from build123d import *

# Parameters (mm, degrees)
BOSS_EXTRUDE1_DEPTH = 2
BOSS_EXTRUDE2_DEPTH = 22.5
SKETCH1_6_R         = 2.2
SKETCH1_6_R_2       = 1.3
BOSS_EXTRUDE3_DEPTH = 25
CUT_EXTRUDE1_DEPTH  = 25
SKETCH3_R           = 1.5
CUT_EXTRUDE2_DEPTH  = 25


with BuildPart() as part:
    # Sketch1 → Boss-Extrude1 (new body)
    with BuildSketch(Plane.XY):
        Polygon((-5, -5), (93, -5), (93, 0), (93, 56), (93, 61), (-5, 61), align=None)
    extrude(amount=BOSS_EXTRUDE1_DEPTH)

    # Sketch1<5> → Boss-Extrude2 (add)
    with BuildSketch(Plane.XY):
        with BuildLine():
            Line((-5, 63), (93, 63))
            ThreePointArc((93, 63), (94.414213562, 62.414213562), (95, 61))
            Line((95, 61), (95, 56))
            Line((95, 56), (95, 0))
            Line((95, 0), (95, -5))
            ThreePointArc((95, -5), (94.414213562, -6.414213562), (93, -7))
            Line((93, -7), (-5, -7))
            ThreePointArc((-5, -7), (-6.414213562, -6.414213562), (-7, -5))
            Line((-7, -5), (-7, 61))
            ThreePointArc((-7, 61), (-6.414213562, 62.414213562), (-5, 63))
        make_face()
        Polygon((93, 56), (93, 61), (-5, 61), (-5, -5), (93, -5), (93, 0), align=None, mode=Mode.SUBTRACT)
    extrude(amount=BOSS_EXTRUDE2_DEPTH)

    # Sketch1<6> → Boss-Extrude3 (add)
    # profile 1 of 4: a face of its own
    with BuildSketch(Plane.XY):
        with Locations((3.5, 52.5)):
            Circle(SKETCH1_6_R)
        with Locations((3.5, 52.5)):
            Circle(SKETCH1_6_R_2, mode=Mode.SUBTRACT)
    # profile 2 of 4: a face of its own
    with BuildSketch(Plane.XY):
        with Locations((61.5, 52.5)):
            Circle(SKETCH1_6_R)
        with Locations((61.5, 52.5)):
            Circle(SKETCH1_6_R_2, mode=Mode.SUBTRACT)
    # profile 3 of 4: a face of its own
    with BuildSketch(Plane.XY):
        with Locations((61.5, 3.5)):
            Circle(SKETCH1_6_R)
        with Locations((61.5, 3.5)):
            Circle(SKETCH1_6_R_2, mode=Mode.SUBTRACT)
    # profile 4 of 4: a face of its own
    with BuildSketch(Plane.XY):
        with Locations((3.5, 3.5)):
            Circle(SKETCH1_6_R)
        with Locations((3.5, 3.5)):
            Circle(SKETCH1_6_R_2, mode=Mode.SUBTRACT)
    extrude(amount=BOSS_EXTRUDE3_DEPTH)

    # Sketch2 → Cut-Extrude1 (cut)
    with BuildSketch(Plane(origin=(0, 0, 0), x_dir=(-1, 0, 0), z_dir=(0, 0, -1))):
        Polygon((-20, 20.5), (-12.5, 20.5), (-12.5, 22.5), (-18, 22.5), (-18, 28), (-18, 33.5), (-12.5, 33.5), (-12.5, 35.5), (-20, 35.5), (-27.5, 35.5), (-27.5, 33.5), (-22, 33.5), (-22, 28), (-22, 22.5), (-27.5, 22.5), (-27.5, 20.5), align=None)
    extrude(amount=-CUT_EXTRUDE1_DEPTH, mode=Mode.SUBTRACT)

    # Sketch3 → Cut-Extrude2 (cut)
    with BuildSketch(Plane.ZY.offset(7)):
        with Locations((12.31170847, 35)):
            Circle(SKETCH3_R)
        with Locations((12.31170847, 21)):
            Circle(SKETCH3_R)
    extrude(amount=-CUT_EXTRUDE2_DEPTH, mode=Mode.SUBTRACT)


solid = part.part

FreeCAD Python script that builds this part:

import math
import FreeCAD as App
import Part
import Sketcher


def add_polygon(sketch, points):
    """Adds a closed chain of lines whose ends are joined by coincident constraints."""
    first, n = sketch.GeometryCount, len(points)
    for a, b in zip(points, points[1:] + points[:1]):
        sketch.addGeometry(Part.LineSegment(App.Vector(*a, 0), App.Vector(*b, 0)), False)
    for i in range(n):
        sketch.addConstraint(Sketcher.Constraint("Coincident", first + i, 2, first + (i + 1) % n, 1))

doc = App.newDocument("Part")
params = doc.addObject("Spreadsheet::Sheet", "Params")
for row, (alias, value) in enumerate([
    ("sketch1_width", "98 mm"),
    ("sketch1_height", "66 mm"),
    ("pad1_length", "2 mm"),
    ("sketch2_radius", "2 mm"),
    ("sketch2_width", "98 mm"),
    ("sketch2_height", "66 mm"),
    ("pad2_length", "22.5 mm"),
    ("sketch3_diameter", "4.4 mm"),
    ("sketch3_diameter2", "2.6 mm"),
    ("pad3_length", "25 mm"),
    ("sketch4_width", "15 mm"),
    ("sketch4_height", "2 mm"),
    ("sketch4_height2", "11 mm"),
    ("sketch4_width2", "5.5 mm"),
    ("pocket1_length", "25 mm"),
    ("sketch5_diameter", "3 mm"),
    ("pocket2_length", "25 mm"),
], start=1):
    params.set(f"A{row}", alias)
    params.set(f"B{row}", "=" + value)
    params.setAlias(f"B{row}", alias)

body = doc.addObject("PartDesign::Body", "Body")

# Sketch on XY plane
sketch1 = body.newObject("Sketcher::SketchObject", "Sketch")
sketch1.AttachmentSupport = (doc.getObject("XY_Plane"), [""])
sketch1.MapMode = "FlatFace"
add_polygon(sketch1, [(-5, -5), (93, -5), (93, 61), (-5, 61)])  # lines 0-3
sketch1.addConstraint(Sketcher.Constraint("Horizontal", 0))
sketch1.addConstraint(Sketcher.Constraint("Vertical", 1))
sketch1.addConstraint(Sketcher.Constraint("Horizontal", 2))
sketch1.addConstraint(Sketcher.Constraint("Vertical", 3))
sketch1.addConstraint(Sketcher.Constraint("DistanceX", 0, 1, 0, 2, 98.0))
sketch1.addConstraint(Sketcher.Constraint("DistanceY", 1, 1, 1, 2, 66.0))
sketch1.addConstraint(Sketcher.Constraint("DistanceX", -1, 1, 0, 2, 93.0))
sketch1.addConstraint(Sketcher.Constraint("DistanceY", 0, 2, -1, 1, 5.0))
sketch1.setExpression("Constraints[8]", "Params.sketch1_width")
sketch1.setExpression("Constraints[9]", "Params.sketch1_height")
pad1 = body.newObject("PartDesign::Pad", "Pad")
pad1.Profile = sketch1
pad1.setExpression("Length", "Params.pad1_length")

# Sketch on XY plane
sketch2 = body.newObject("Sketcher::SketchObject", "Sketch001")
sketch2.AttachmentSupport = (doc.getObject("XY_Plane"), [""])
sketch2.MapMode = "FlatFace"
sketch2.addGeometry(Part.LineSegment(App.Vector(93, 63, 0), App.Vector(-5, 63, 0)), False)  # 0
sketch2.addGeometry(Part.ArcOfCircle(Part.Circle(App.Vector(-5, 61, 0), App.Vector(0, 0, 1), 2), math.radians(90), math.radians(180)), False)  # 1
sketch2.addGeometry(Part.LineSegment(App.Vector(-7, 61, 0), App.Vector(-7, -5, 0)), False)  # 2
sketch2.addGeometry(Part.ArcOfCircle(Part.Circle(App.Vector(-5, -5, 0), App.Vector(0, 0, 1), 2), math.radians(-180), math.radians(-90)), False)  # 3
sketch2.addGeometry(Part.LineSegment(App.Vector(-5, -7, 0), App.Vector(93, -7, 0)), False)  # 4
sketch2.addGeometry(Part.ArcOfCircle(Part.Circle(App.Vector(93, -5, 0), App.Vector(0, 0, 1), 2), math.radians(-90), math.radians(0)), False)  # 5
sketch2.addGeometry(Part.LineSegment(App.Vector(95, -5, 0), App.Vector(95, 61, 0)), False)  # 6
sketch2.addGeometry(Part.ArcOfCircle(Part.Circle(App.Vector(93, 61, 0), App.Vector(0, 0, 1), 2), math.radians(0), math.radians(90)), False)  # 7
add_polygon(sketch2, [(93, -5), (-5, -5), (-5, 61), (93, 61)])  # lines 8-11
sketch2.addConstraint(Sketcher.Constraint("Tangent", 0, 2, 1, 1))
sketch2.addConstraint(Sketcher.Constraint("Tangent", 1, 2, 2, 1))
sketch2.addConstraint(Sketcher.Constraint("Tangent", 2, 2, 3, 1))
sketch2.addConstraint(Sketcher.Constraint("Tangent", 3, 2, 4, 1))
sketch2.addConstraint(Sketcher.Constraint("Tangent", 4, 2, 5, 1))
sketch2.addConstraint(Sketcher.Constraint("Tangent", 5, 2, 6, 1))
sketch2.addConstraint(Sketcher.Constraint("Tangent", 6, 2, 7, 1))
sketch2.addConstraint(Sketcher.Constraint("Tangent", 7, 2, 0, 1))
sketch2.addConstraint(Sketcher.Constraint("Horizontal", 0))
sketch2.addConstraint(Sketcher.Constraint("Vertical", 2))
sketch2.addConstraint(Sketcher.Constraint("Horizontal", 4))
sketch2.addConstraint(Sketcher.Constraint("Vertical", 6))
sketch2.addConstraint(Sketcher.Constraint("Horizontal", 8))
sketch2.addConstraint(Sketcher.Constraint("Vertical", 9))
sketch2.addConstraint(Sketcher.Constraint("Horizontal", 10))
sketch2.addConstraint(Sketcher.Constraint("Vertical", 11))
sketch2.addConstraint(Sketcher.Constraint("Coincident", 8, 2, 3, 3))
sketch2.addConstraint(Sketcher.Constraint("Coincident", 9, 2, 1, 3))
sketch2.addConstraint(Sketcher.Constraint("Coincident", 10, 2, 7, 3))
sketch2.addConstraint(Sketcher.Constraint("Equal", 3, 5))
sketch2.addConstraint(Sketcher.Constraint("Radius", 1, 2.0))
sketch2.addConstraint(Sketcher.Constraint("DistanceX", 0, 2, 0, 1, 98.0))
sketch2.addConstraint(Sketcher.Constraint("DistanceY", 2, 2, 2, 1, 66.0))
sketch2.addConstraint(Sketcher.Constraint("DistanceX", 1, 3, -1, 1, 5.0))
sketch2.addConstraint(Sketcher.Constraint("DistanceY", -1, 1, 1, 3, 61.0))
sketch2.setExpression("Constraints[24]", "Params.sketch2_radius")
sketch2.setExpression("Constraints[25]", "Params.sketch2_width")
sketch2.setExpression("Constraints[26]", "Params.sketch2_height")
pad2 = body.newObject("PartDesign::Pad", "Pad001")
pad2.Profile = sketch2
pad2.setExpression("Length", "Params.pad2_length")

# Sketch on XY plane
sketch3 = body.newObject("Sketcher::SketchObject", "Sketch002")
sketch3.AttachmentSupport = (doc.getObject("XY_Plane"), [""])
sketch3.MapMode = "FlatFace"
sketch3.addGeometry(Part.Circle(App.Vector(3.5, 52.5, 0), App.Vector(0, 0, 1), 2.2), False)
sketch3.addGeometry(Part.Circle(App.Vector(3.5, 52.5, 0), App.Vector(0, 0, 1), 1.3), False)
sketch3.addGeometry(Part.Circle(App.Vector(61.5, 52.5, 0), App.Vector(0, 0, 1), 2.2), False)
sketch3.addGeometry(Part.Circle(App.Vector(61.5, 52.5, 0), App.Vector(0, 0, 1), 1.3), False)
sketch3.addGeometry(Part.Circle(App.Vector(61.5, 3.5, 0), App.Vector(0, 0, 1), 2.2), False)
sketch3.addGeometry(Part.Circle(App.Vector(61.5, 3.5, 0), App.Vector(0, 0, 1), 1.3), False)
sketch3.addGeometry(Part.Circle(App.Vector(3.5, 3.5, 0), App.Vector(0, 0, 1), 2.2), False)
sketch3.addGeometry(Part.Circle(App.Vector(3.5, 3.5, 0), App.Vector(0, 0, 1), 1.3), False)
sketch3.addConstraint(Sketcher.Constraint("Coincident", 1, 3, 0, 3))
sketch3.addConstraint(Sketcher.Constraint("Coincident", 3, 3, 2, 3))
sketch3.addConstraint(Sketcher.Constraint("Coincident", 5, 3, 4, 3))
sketch3.addConstraint(Sketcher.Constraint("Coincident", 7, 3, 6, 3))
sketch3.addConstraint(Sketcher.Constraint("Equal", 0, 2))
sketch3.addConstraint(Sketcher.Constraint("Equal", 1, 3))
sketch3.addConstraint(Sketcher.Constraint("Equal", 2, 4))
sketch3.addConstraint(Sketcher.Constraint("Equal", 3, 5))
sketch3.addConstraint(Sketcher.Constraint("Equal", 4, 6))
sketch3.addConstraint(Sketcher.Constraint("Equal", 5, 7))
sketch3.addConstraint(Sketcher.Constraint("Horizontal", 1, 3, 2, 3))
sketch3.addConstraint(Sketcher.Constraint("Horizontal", 5, 3, 6, 3))
sketch3.addConstraint(Sketcher.Constraint("Vertical", 3, 3, 4, 3))
sketch3.addConstraint(Sketcher.Constraint("Vertical", 1, 3, 6, 3))
sketch3.addConstraint(Sketcher.Constraint("Diameter", 0, 4.4))
sketch3.addConstraint(Sketcher.Constraint("Diameter", 1, 2.6))
sketch3.addConstraint(Sketcher.Constraint("DistanceX", 0, 3, 2, 3, 58.0))
sketch3.addConstraint(Sketcher.Constraint("DistanceY", 4, 3, 2, 3, 49.0))
sketch3.addConstraint(Sketcher.Constraint("DistanceX", -1, 1, 0, 3, 3.5))
sketch3.addConstraint(Sketcher.Constraint("DistanceY", -1, 1, 0, 3, 52.5))
sketch3.setExpression("Constraints[14]", "Params.sketch3_diameter")
sketch3.setExpression("Constraints[15]", "Params.sketch3_diameter2")
pad3 = body.newObject("PartDesign::Pad", "Pad002")
pad3.Profile = sketch3
pad3.setExpression("Length", "Params.pad3_length")

# Sketch on XY plane
sketch4 = body.newObject("Sketcher::SketchObject", "Sketch003")
sketch4.AttachmentSupport = (doc.getObject("XY_Plane"), [""])
sketch4.MapMode = "FlatFace"
add_polygon(sketch4, [(12.5, 20.5), (12.5, 22.5), (18, 22.5), (18, 33.5), (12.5, 33.5), (12.5, 35.5), (27.5, 35.5), (27.5, 33.5), (22, 33.5), (22, 22.5), (27.5, 22.5), (27.5, 20.5)])  # lines 0-11
sketch4.addConstraint(Sketcher.Constraint("Vertical", 0))
sketch4.addConstraint(Sketcher.Constraint("Horizontal", 1))
sketch4.addConstraint(Sketcher.Constraint("Vertical", 2))
sketch4.addConstraint(Sketcher.Constraint("Horizontal", 3))
sketch4.addConstraint(Sketcher.Constraint("Vertical", 4))
sketch4.addConstraint(Sketcher.Constraint("Horizontal", 5))
sketch4.addConstraint(Sketcher.Constraint("Vertical", 6))
sketch4.addConstraint(Sketcher.Constraint("Horizontal", 7))
sketch4.addConstraint(Sketcher.Constraint("Vertical", 8))
sketch4.addConstraint(Sketcher.Constraint("Horizontal", 9))
sketch4.addConstraint(Sketcher.Constraint("Vertical", 10))
sketch4.addConstraint(Sketcher.Constraint("Horizontal", 11))
sketch4.addConstraint(Sketcher.Constraint("Horizontal", 3, 2, 6, 2))
sketch4.addConstraint(Sketcher.Constraint("Horizontal", 1, 2, 8, 2))
sketch4.addConstraint(Sketcher.Constraint("Vertical", 0, 2, 3, 2))
sketch4.addConstraint(Sketcher.Constraint("Vertical", 6, 2, 9, 2))
sketch4.addConstraint(Sketcher.Constraint("Equal", 3, 7))
sketch4.addConstraint(Sketcher.Constraint("Equal", 0, 4))
sketch4.addConstraint(Sketcher.Constraint("DistanceX", 5, 1, 5, 2, 15.0))
sketch4.addConstraint(Sketcher.Constraint("DistanceY", 0, 1, 0, 2, 2.0))
sketch4.addConstraint(Sketcher.Constraint("DistanceY", 2, 1, 2, 2, 11.0))
sketch4.addConstraint(Sketcher.Constraint("DistanceX", 1, 1, 1, 2, 5.5))
sketch4.addConstraint(Sketcher.Constraint("DistanceX", -1, 1, 1, 2, 18.0))
sketch4.addConstraint(Sketcher.Constraint("DistanceY", -1, 1, 0, 2, 22.5))
sketch4.setExpression("Constraints[30]", "Params.sketch4_width")
sketch4.setExpression("Constraints[31]", "Params.sketch4_height")
sketch4.setExpression("Constraints[32]", "Params.sketch4_height2")
sketch4.setExpression("Constraints[33]", "Params.sketch4_width2")
pocket1 = body.newObject("PartDesign::Pocket", "Pocket")
pocket1.Profile = sketch4
pocket1.setExpression("Length", "Params.pocket1_length")
pocket1.Reversed = True

# Sketch on YZ plane
sketch5 = body.newObject("Sketcher::SketchObject", "Sketch004")
sketch5.AttachmentSupport = (doc.getObject("YZ_Plane"), [""])
sketch5.MapMode = "FlatFace"
sketch5.AttachmentOffset = App.Placement(App.Vector(0, 0, -7), App.Rotation())
sketch5.addGeometry(Part.Circle(App.Vector(35, 12.311708, 0), App.Vector(0, 0, 1), 1.5), False)
sketch5.addGeometry(Part.Circle(App.Vector(21, 12.311708, 0), App.Vector(0, 0, 1), 1.5), False)
sketch5.addConstraint(Sketcher.Constraint("Equal", 0, 1))
sketch5.addConstraint(Sketcher.Constraint("Horizontal", 0, 3, 1, 3))
sketch5.addConstraint(Sketcher.Constraint("Diameter", 0, 3.0))
sketch5.addConstraint(Sketcher.Constraint("DistanceX", -1, 1, 0, 3, 35.0))
sketch5.addConstraint(Sketcher.Constraint("DistanceX", -1, 1, 1, 3, 21.0))
sketch5.addConstraint(Sketcher.Constraint("DistanceY", -1, 1, 0, 3, 12.311708))
sketch5.setExpression("Constraints[2]", "Params.sketch5_diameter")
pocket2 = body.newObject("PartDesign::Pocket", "Pocket001")
pocket2.Profile = sketch5
pocket2.setExpression("Length", "Params.pocket2_length")
pocket2.Reversed = True

doc.recompute()
